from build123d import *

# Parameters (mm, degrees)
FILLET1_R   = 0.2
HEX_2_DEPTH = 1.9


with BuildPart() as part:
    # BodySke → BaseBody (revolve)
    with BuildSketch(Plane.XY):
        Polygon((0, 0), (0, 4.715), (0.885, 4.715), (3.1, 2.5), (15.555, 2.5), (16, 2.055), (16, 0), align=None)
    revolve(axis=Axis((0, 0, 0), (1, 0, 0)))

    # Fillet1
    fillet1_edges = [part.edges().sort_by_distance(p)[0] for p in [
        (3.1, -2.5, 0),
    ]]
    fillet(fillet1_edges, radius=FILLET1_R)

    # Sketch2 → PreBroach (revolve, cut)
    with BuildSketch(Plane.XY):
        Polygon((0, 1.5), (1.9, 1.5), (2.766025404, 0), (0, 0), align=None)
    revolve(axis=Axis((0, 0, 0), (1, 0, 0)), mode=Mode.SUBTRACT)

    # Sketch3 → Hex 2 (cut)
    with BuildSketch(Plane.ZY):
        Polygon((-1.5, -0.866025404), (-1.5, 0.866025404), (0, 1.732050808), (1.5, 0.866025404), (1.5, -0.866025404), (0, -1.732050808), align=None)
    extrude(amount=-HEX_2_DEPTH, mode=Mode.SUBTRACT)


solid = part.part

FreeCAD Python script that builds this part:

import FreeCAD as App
import Part
import Sketcher
from FreeCAD import Vector
Q = App.Units.Quantity


def edges_at(feature, points):
    """Names of the edges that pass closest to the given points."""
    edges = feature.Shape.Edges
    near = lambda p: min(range(len(edges)), key=lambda i: edges[i].distToShape(Part.Vertex(*p))[0])
    return sorted({f"Edge{near(p) + 1}" for p in points})

doc = App.newDocument("Part")
body = doc.addObject("PartDesign::Body", "Body")

sketch1 = body.newObject("Sketcher::SketchObject", "Sketch")
sketch1.AttachmentSupport = (doc.getObject("XY_Plane"), [""])
sketch1.MapMode = "FlatFace"
sketch1.addGeometry([
    Part.LineSegment(Vector(0, 4.7, 0), Vector(0, 0, 0)),
    Part.LineSegment(Vector(0, 0, 0), Vector(16, 0, 0)),
    Part.LineSegment(Vector(16, 0, 0), Vector(16, 2.1, 0)),
    Part.LineSegment(Vector(16, 2.1, 0), Vector(15.6, 2.5, 0)),
    Part.LineSegment(Vector(15.6, 2.5, 0), Vector(3.1, 2.5, 0)),
    Part.LineSegment(Vector(3.1, 2.5, 0), Vector(0.9, 4.7, 0)),
    Part.LineSegment(Vector(0.9, 4.7, 0), Vector(0, 4.7, 0)),
], False)
sketch1.addConstraint([
    Sketcher.Constraint("Coincident", 0, 2, 1, 1),
    Sketcher.Constraint("Coincident", 1, 2, 2, 1),
    Sketcher.Constraint("Coincident", 2, 2, 3, 1),
    Sketcher.Constraint("Coincident", 3, 2, 4, 1),
    Sketcher.Constraint("Coincident", 4, 2, 5, 1),
    Sketcher.Constraint("Coincident", 5, 2, 6, 1),
    Sketcher.Constraint("Coincident", 6, 2, 0, 1),
    Sketcher.Constraint("Vertical", 0),
    Sketcher.Constraint("Horizontal", 1),
    Sketcher.Constraint("Vertical", 2),
    Sketcher.Constraint("Horizontal", 4),
    Sketcher.Constraint("Horizontal", 6),
    Sketcher.Constraint("Coincident", 0, 2, -1, 1),
    Sketcher.Constraint("Parallel", 3, 5),
    Sketcher.Constraint("DistanceX", 1, 1, 1, 2, 16.0),
    Sketcher.Constraint("Angle", 3, Q("135 deg")),
    Sketcher.Constraint("DistanceY", -1, 1, 3, 2, 2.5),
    Sketcher.Constraint("DistanceX", -1, 1, 4, 2, 3.1),
    Sketcher.Constraint("DistanceX", 4, 2, 4, 1, 12.455),
    Sketcher.Constraint("DistanceX", 6, 2, 6, 1, 0.885),
])
revolution = body.newObject("PartDesign::Revolution", "Revolution")
revolution.Profile = sketch1
revolution.ReferenceAxis = (sketch1, ["H_Axis"])
revolution.Angle = 360
doc.recompute()

fillet = body.newObject("PartDesign::Fillet", "Fillet")
fillet.Base = (revolution, edges_at(revolution, [(3.1, -2.5, 0)]))
fillet.Radius = 0.2

sketch2 = body.newObject("Sketcher::SketchObject", "Sketch001")
sketch2.AttachmentSupport = (doc.getObject("XY_Plane"), [""])
sketch2.MapMode = "FlatFace"
sketch2.addGeometry([
    Part.LineSegment(Vector(1.9, 1.5, 0), Vector(0, 1.5, 0)),
    Part.LineSegment(Vector(0, 1.5, 0), Vector(0, 0, 0)),
    Part.LineSegment(Vector(0, 0, 0), Vector(2.8, 0, 0)),
    Part.LineSegment(Vector(2.8, 0, 0), Vector(1.9, 1.5, 0)),
], False)
sketch2.addConstraint([
    Sketcher.Constraint("Coincident", 0, 2, 1, 1),
    Sketcher.Constraint("Coincident", 1, 2, 2, 1),
    Sketcher.Constraint("Coincident", 2, 2, 3, 1),
    Sketcher.Constraint("Coincident", 3, 2, 0, 1),
    Sketcher.Constraint("Horizontal", 0),
    Sketcher.Constraint("Vertical", 1),
    Sketcher.Constraint("Horizontal", 2),
    Sketcher.Constraint("Coincident", 1, 2, -1, 1),
    Sketcher.Constraint("Angle", 3, Q("120 deg")),
    Sketcher.Constraint("DistanceX", 0, 2, 0, 1, 1.9),
    Sketcher.Constraint("DistanceY", 1, 2, 1, 1, 1.5),
])
groove = body.newObject("PartDesign::Groove", "Groove")
groove.Profile = sketch2
groove.ReferenceAxis = (sketch2, ["H_Axis"])
groove.Angle = 360

sketch3 = body.newObject("Sketcher::SketchObject", "Sketch002")
sketch3.AttachmentSupport = (doc.getObject("YZ_Plane"), [""])
sketch3.MapMode = "FlatFace"
sketch3.addGeometry([
    Part.LineSegment(Vector(0.9, -1.5, 0), Vector(-0.9, -1.5, 0)),
    Part.LineSegment(Vector(-0.9, -1.5, 0), Vector(-1.7, 0, 0)),
    Part.LineSegment(Vector(-1.7, 0, 0), Vector(-0.9, 1.5, 0)),
    Part.LineSegment(Vector(-0.9, 1.5, 0), Vector(0.9, 1.5, 0)),
    Part.LineSegment(Vector(0.9, 1.5, 0), Vector(1.7, 0, 0)),
    Part.LineSegment(Vector(1.7, 0, 0), Vector(0.9, -1.5, 0)),
], False)
sketch3.addConstraint([
    Sketcher.Constraint("Coincident", 0, 2, 1, 1),
    Sketcher.Constraint("Coincident", 1, 2, 2, 1),
    Sketcher.Constraint("Coincident", 2, 2, 3, 1),
    Sketcher.Constraint("Coincident", 3, 2, 4, 1),
    Sketcher.Constraint("Coincident", 4, 2, 5, 1),
    Sketcher.Constraint("Coincident", 5, 2, 0, 1),
    Sketcher.Constraint("Horizontal", 0),
    Sketcher.Constraint("Horizontal", 3),
    Sketcher.Constraint("Symmetric", 0, 2, 3, 2, -1, 1),
    Sketcher.Constraint("Symmetric", 1, 2, 4, 2, -1, 1),
    Sketcher.Constraint("PointOnObject", 1, 2, -1),
    Sketcher.Constraint("Parallel", 2, 5),
    Sketcher.Constraint("Vertical", 0, 2, 2, 2),
    Sketcher.Constraint("Angle", 1, Q("120 deg")),
    Sketcher.Constraint("DistanceY", 0, 2, 2, 2, 3.0),
    Sketcher.Constraint("DistanceX", 0, 2, 0, 1, 1.732051),
])
pocket1 = body.newObject("PartDesign::Pocket", "Pocket")
pocket1.Profile = sketch3
pocket1.Length = 1.9
pocket1.Reversed = True

doc.recompute()
